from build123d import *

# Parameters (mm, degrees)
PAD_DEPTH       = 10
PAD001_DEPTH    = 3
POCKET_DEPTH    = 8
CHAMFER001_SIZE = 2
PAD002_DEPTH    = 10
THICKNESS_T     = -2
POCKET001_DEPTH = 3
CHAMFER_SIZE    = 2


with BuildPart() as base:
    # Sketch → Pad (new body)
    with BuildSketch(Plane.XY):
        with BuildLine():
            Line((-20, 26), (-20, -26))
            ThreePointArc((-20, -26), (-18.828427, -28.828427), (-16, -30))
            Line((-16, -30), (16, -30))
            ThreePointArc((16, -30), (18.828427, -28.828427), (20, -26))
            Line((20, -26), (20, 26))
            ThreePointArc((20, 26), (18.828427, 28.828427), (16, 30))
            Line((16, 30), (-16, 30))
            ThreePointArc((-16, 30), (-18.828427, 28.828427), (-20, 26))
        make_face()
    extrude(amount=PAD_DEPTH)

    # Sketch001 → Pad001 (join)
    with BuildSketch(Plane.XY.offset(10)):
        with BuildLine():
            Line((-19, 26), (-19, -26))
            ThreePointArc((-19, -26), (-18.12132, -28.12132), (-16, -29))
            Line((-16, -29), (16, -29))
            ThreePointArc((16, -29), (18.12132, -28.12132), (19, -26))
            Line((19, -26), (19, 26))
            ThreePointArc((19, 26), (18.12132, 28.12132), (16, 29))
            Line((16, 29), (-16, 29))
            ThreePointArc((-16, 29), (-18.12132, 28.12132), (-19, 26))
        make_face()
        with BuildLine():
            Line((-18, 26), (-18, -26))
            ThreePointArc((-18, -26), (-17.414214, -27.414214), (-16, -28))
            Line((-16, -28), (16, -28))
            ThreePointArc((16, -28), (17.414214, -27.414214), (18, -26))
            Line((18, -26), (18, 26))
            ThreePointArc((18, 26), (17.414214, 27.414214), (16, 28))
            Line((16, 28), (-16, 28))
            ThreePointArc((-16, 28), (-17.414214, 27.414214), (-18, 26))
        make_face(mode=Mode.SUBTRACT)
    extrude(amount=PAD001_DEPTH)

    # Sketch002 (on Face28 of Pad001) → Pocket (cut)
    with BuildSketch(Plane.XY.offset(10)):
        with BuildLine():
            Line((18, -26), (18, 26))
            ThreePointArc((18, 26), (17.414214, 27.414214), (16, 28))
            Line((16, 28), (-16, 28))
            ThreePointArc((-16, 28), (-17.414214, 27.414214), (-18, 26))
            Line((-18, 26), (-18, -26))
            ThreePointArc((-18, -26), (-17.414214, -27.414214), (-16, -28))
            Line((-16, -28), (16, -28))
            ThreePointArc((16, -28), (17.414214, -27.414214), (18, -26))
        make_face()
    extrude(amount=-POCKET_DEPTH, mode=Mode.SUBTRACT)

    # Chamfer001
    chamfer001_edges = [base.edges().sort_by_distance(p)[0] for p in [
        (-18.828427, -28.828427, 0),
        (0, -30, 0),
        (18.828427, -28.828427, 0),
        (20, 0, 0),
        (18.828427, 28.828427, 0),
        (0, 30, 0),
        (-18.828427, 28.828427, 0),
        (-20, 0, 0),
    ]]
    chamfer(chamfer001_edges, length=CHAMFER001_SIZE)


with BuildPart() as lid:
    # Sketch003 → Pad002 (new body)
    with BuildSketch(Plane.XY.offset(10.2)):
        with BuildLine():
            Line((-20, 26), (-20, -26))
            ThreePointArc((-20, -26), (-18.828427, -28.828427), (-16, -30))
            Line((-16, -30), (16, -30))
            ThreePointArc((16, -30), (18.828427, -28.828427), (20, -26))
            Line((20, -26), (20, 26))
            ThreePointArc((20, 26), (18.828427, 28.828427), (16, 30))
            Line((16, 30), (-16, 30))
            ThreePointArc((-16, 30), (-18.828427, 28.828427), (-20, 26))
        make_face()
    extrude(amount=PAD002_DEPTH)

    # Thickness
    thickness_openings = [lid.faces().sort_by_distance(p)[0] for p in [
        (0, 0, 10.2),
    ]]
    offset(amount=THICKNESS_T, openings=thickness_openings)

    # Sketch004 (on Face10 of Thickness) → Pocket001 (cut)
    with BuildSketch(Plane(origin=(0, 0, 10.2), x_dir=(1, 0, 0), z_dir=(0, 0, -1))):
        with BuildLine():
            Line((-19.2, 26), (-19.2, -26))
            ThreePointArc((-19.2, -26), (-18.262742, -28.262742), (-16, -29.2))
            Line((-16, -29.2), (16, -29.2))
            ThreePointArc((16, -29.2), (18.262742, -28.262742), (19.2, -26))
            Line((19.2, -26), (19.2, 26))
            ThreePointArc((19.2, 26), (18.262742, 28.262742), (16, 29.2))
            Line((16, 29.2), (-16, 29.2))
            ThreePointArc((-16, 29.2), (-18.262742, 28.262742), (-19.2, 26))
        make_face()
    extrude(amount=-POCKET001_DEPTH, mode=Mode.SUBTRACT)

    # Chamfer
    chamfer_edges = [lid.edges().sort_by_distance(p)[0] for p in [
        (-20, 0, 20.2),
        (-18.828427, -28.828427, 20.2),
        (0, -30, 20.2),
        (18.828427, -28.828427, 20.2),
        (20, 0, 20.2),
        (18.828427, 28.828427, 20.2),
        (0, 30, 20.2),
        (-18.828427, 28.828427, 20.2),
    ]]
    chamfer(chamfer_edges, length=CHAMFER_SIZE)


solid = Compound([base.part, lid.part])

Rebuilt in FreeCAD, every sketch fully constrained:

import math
import FreeCAD as App
import Part
import Sketcher
from FreeCAD import Vector
Q = App.Units.Quantity


def edges_at(feature, points):
    """Names of the edges that pass closest to the given points."""
    edges = feature.Shape.Edges
    near = lambda p: min(range(len(edges)), key=lambda i: edges[i].distToShape(Part.Vertex(*p))[0])
    return sorted({f"Edge{near(p) + 1}" for p in points})


def faces_at(feature, points):
    """Names of the faces that lie closest to the given points."""
    faces = feature.Shape.Faces
    near = lambda p: min(range(len(faces)), key=lambda i: faces[i].distToShape(Part.Vertex(*p))[0])
    return sorted({f"Face{near(p) + 1}" for p in points})

doc = App.newDocument("Part")
body = doc.addObject("PartDesign::Body", "Body")

# Sketch on XY plane
sketch1 = body.newObject("Sketcher::SketchObject", "Sketch")
sketch1.AttachmentSupport = (doc.getObject("XY_Plane"), [""])
sketch1.MapMode = "FlatFace"
sketch1.addGeometry([
    Part.LineSegment(Vector(-20, 26, 0), Vector(-20, -26, 0)),  # 0
    Part.ArcOfCircle(Part.Circle(Vector(-16, -26, 0), Vector(0, 0, 1), 4), math.radians(-180), math.radians(-90)),  # 1
    Part.LineSegment(Vector(-16, -30, 0), Vector(16, -30, 0)),  # 2
    Part.ArcOfCircle(Part.Circle(Vector(16, -26, 0), Vector(0, 0, 1), 4), math.radians(-90), math.radians(0)),  # 3
    Part.LineSegment(Vector(20, -26, 0), Vector(20, 26, 0)),  # 4
    Part.ArcOfCircle(Part.Circle(Vector(16, 26, 0), Vector(0, 0, 1), 4), math.radians(0), math.radians(90)),  # 5
    Part.LineSegment(Vector(16, 30, 0), Vector(-16, 30, 0)),  # 6
    Part.ArcOfCircle(Part.Circle(Vector(-16, 26, 0), Vector(0, 0, 1), 4), math.radians(90), math.radians(180)),  # 7
], False)
sketch1.addConstraint([
    Sketcher.Constraint("Tangent", 0, 2, 1, 1),
    Sketcher.Constraint("Tangent", 1, 2, 2, 1),
    Sketcher.Constraint("Tangent", 2, 2, 3, 1),
    Sketcher.Constraint("Tangent", 3, 2, 4, 1),
    Sketcher.Constraint("Tangent", 4, 2, 5, 1),
    Sketcher.Constraint("Tangent", 5, 2, 6, 1),
    Sketcher.Constraint("Tangent", 6, 2, 7, 1),
    Sketcher.Constraint("Tangent", 7, 2, 0, 1),
    Sketcher.Constraint("Vertical", 0),
    Sketcher.Constraint("Horizontal", 2),
    Sketcher.Constraint("Vertical", 4),
    Sketcher.Constraint("Horizontal", 6),
    Sketcher.Constraint("Equal", 1, 3),
    Sketcher.Constraint("Equal", 3, 5),
    Sketcher.Constraint("Equal", 5, 7),
    Sketcher.Constraint("Symmetric", 1, 3, 5, 3, -1, 1),
    Sketcher.Constraint("Radius", 1, Q("4 mm")),
    Sketcher.Constraint("DistanceX", 2, 1, 2, 2, Q("32 mm")),
    Sketcher.Constraint("DistanceY", 0, 2, 0, 1, Q("52 mm")),
])
pad1 = body.newObject("PartDesign::Pad", "Pad")
pad1.Profile = sketch1
pad1.Length = 10

# Sketch on XY plane
sketch2 = body.newObject("Sketcher::SketchObject", "Sketch001")
sketch2.AttachmentSupport = (doc.getObject("XY_Plane"), [""])
sketch2.MapMode = "FlatFace"
sketch2.AttachmentOffset = App.Placement(Vector(0, 0, 10), App.Rotation())
sketch2.addGeometry([
    Part.LineSegment(Vector(-19, 26, 0), Vector(-19, -26, 0)),  # 0
    Part.ArcOfCircle(Part.Circle(Vector(-16, -26, 0), Vector(0, 0, 1), 3), math.radians(-180), math.radians(-90)),  # 1
    Part.LineSegment(Vector(-16, -29, 0), Vector(16, -29, 0)),  # 2
    Part.ArcOfCircle(Part.Circle(Vector(16, -26, 0), Vector(0, 0, 1), 3), math.radians(-90), math.radians(0)),  # 3
    Part.LineSegment(Vector(19, -26, 0), Vector(19, 26, 0)),  # 4
    Part.ArcOfCircle(Part.Circle(Vector(16, 26, 0), Vector(0, 0, 1), 3), math.radians(0), math.radians(90)),  # 5
    Part.LineSegment(Vector(16, 29, 0), Vector(-16, 29, 0)),  # 6
    Part.ArcOfCircle(Part.Circle(Vector(-16, 26, 0), Vector(0, 0, 1), 3), math.radians(90), math.radians(180)),  # 7
    Part.LineSegment(Vector(-18, -26, 0), Vector(-18, 26, 0)),  # 8
    Part.ArcOfCircle(Part.Circle(Vector(-16, 26, 0), Vector(0, 0, 1), 2), math.radians(90), math.radians(180)),  # 9
    Part.LineSegment(Vector(-16, 28, 0), Vector(16, 28, 0)),  # 10
    Part.ArcOfCircle(Part.Circle(Vector(16, 26, 0), Vector(0, 0, 1), 2), math.radians(0), math.radians(90)),  # 11
    Part.LineSegment(Vector(18, 26, 0), Vector(18, -26, 0)),  # 12
    Part.ArcOfCircle(Part.Circle(Vector(16, -26, 0), Vector(0, 0, 1), 2), math.radians(-90), math.radians(0)),  # 13
    Part.LineSegment(Vector(16, -28, 0), Vector(-16, -28, 0)),  # 14
    Part.ArcOfCircle(Part.Circle(Vector(-16, -26, 0), Vector(0, 0, 1), 2), math.radians(180), math.radians(270)),  # 15
], False)
sketch2.addConstraint([
    Sketcher.Constraint("Tangent", 0, 2, 1, 1),
    Sketcher.Constraint("Tangent", 1, 2, 2, 1),
    Sketcher.Constraint("Tangent", 2, 2, 3, 1),
    Sketcher.Constraint("Tangent", 3, 2, 4, 1),
    Sketcher.Constraint("Tangent", 4, 2, 5, 1),
    Sketcher.Constraint("Tangent", 5, 2, 6, 1),
    Sketcher.Constraint("Tangent", 6, 2, 7, 1),
    Sketcher.Constraint("Tangent", 7, 2, 0, 1),
    Sketcher.Constraint("Tangent", 8, 2, 9, 2),
    Sketcher.Constraint("Tangent", 9, 1, 10, 1),
    Sketcher.Constraint("Tangent", 10, 2, 11, 2),
    Sketcher.Constraint("Tangent", 11, 1, 12, 1),
    Sketcher.Constraint("Tangent", 12, 2, 13, 2),
    Sketcher.Constraint("Tangent", 13, 1, 14, 1),
    Sketcher.Constraint("Tangent", 14, 2, 15, 2),
    Sketcher.Constraint("Tangent", 15, 1, 8, 1),
    Sketcher.Constraint("Vertical", 0),
    Sketcher.Constraint("Horizontal", 2),
    Sketcher.Constraint("Vertical", 4),
    Sketcher.Constraint("Horizontal", 6),
    Sketcher.Constraint("Vertical", 8),
    Sketcher.Constraint("Horizontal", 10),
    Sketcher.Constraint("Vertical", 12),
    Sketcher.Constraint("Horizontal", 14),
    Sketcher.Constraint("Coincident", 9, 3, 7, 3),
    Sketcher.Constraint("Coincident", 11, 3, 5, 3),
    Sketcher.Constraint("Coincident", 13, 3, 3, 3),
    Sketcher.Constraint("Equal", 1, 3),
    Sketcher.Constraint("Equal", 3, 5),
    Sketcher.Constraint("Equal", 5, 7),
    Sketcher.Constraint("Equal", 13, 15),
    Sketcher.Constraint("Symmetric", 1, 3, 5, 3, -1, 1),
    Sketcher.Constraint("Radius", 1, Q("3.000001 mm")),
    Sketcher.Constraint("Radius", 9, Q("1.999999 mm")),
    Sketcher.Constraint("DistanceX", 2, 1, 2, 2, Q("32 mm")),
    Sketcher.Constraint("DistanceY", 0, 2, 0, 1, Q("52 mm")),
])
pad2 = body.newObject("PartDesign::Pad", "Pad001")
pad2.Profile = sketch2
pad2.Length = 3

# Sketch on XY plane
sketch3 = body.newObject("Sketcher::SketchObject", "Sketch002")
sketch3.AttachmentSupport = (doc.getObject("XY_Plane"), [""])
sketch3.MapMode = "FlatFace"
sketch3.AttachmentOffset = App.Placement(Vector(0, 0, 10), App.Rotation())
sketch3.addGeometry([
    Part.LineSegment(Vector(18, -26, 0), Vector(18, 26, 0)),  # 0
    Part.ArcOfCircle(Part.Circle(Vector(16, 26, 0), Vector(0, 0, 1), 2), math.radians(0), math.radians(90)),  # 1
    Part.LineSegment(Vector(16, 28, 0), Vector(-16, 28, 0)),  # 2
    Part.ArcOfCircle(Part.Circle(Vector(-16, 26, 0), Vector(0, 0, 1), 2), math.radians(90), math.radians(180)),  # 3
    Part.LineSegment(Vector(-18, 26, 0), Vector(-18, -26, 0)),  # 4
    Part.ArcOfCircle(Part.Circle(Vector(-16, -26, 0), Vector(0, 0, 1), 2), math.radians(180), math.radians(270)),  # 5
    Part.LineSegment(Vector(-16, -28, 0), Vector(16, -28, 0)),  # 6
    Part.ArcOfCircle(Part.Circle(Vector(16, -26, 0), Vector(0, 0, 1), 2), math.radians(-90), math.radians(0)),  # 7
], False)
sketch3.addConstraint([
    Sketcher.Constraint("Tangent", 0, 2, 1, 1),
    Sketcher.Constraint("Tangent", 1, 2, 2, 1),
    Sketcher.Constraint("Tangent", 2, 2, 3, 1),
    Sketcher.Constraint("Tangent", 3, 2, 4, 1),
    Sketcher.Constraint("Tangent", 4, 2, 5, 1),
    Sketcher.Constraint("Tangent", 5, 2, 6, 1),
    Sketcher.Constraint("Tangent", 6, 2, 7, 1),
    Sketcher.Constraint("Tangent", 7, 2, 0, 1),
    Sketcher.Constraint("Vertical", 0),
    Sketcher.Constraint("Horizontal", 2),
    Sketcher.Constraint("Vertical", 4),
    Sketcher.Constraint("Horizontal", 6),
    Sketcher.Constraint("Equal", 1, 3),
    Sketcher.Constraint("Equal", 3, 5),
    Sketcher.Constraint("Equal", 5, 7),
    Sketcher.Constraint("Symmetric", 1, 3, 5, 3, -1, 1),
    Sketcher.Constraint("Radius", 1, Q("1.999999 mm")),
    Sketcher.Constraint("DistanceX", 2, 2, 2, 1, Q("32 mm")),
    Sketcher.Constraint("DistanceY", 0, 1, 0, 2, Q("52 mm")),
])
pocket1 = body.newObject("PartDesign::Pocket", "Pocket")
pocket1.Profile = sketch3
pocket1.Length = 8
doc.recompute()

chamfer = body.newObject("PartDesign::Chamfer", "Chamfer")
chamfer.Base = (pocket1, edges_at(pocket1, [
    (-18.828, -28.828, 0),
    (0, -30, 0),
    (18.828, -28.828, 0),
    (20, 0, 0),
    (18.828, 28.828, 0),
    (0, 30, 0),
    (-18.828, 28.828, 0),
    (-20, 0, 0),
]))
chamfer.Size = 2
body2 = doc.addObject("PartDesign::Body", "Body001")

# Sketch on XY plane
sketch4 = body2.newObject("Sketcher::SketchObject", "Sketch003")
sketch4.AttachmentSupport = (doc.getObject("XY_Plane001"), [""])
sketch4.MapMode = "FlatFace"
sketch4.AttachmentOffset = App.Placement(Vector(0, 0, 10.2), App.Rotation())
sketch4.addGeometry([
    Part.LineSegment(Vector(-20, 26, 0), Vector(-20, -26, 0)),  # 0
    Part.ArcOfCircle(Part.Circle(Vector(-16, -26, 0), Vector(0, 0, 1), 4), math.radians(-180), math.radians(-90)),  # 1
    Part.LineSegment(Vector(-16, -30, 0), Vector(16, -30, 0)),  # 2
    Part.ArcOfCircle(Part.Circle(Vector(16, -26, 0), Vector(0, 0, 1), 4), math.radians(-90), math.radians(0)),  # 3
    Part.LineSegment(Vector(20, -26, 0), Vector(20, 26, 0)),  # 4
    Part.ArcOfCircle(Part.Circle(Vector(16, 26, 0), Vector(0, 0, 1), 4), math.radians(0), math.radians(90)),  # 5
    Part.LineSegment(Vector(16, 30, 0), Vector(-16, 30, 0)),  # 6
    Part.ArcOfCircle(Part.Circle(Vector(-16, 26, 0), Vector(0, 0, 1), 4), math.radians(90), math.radians(180)),  # 7
], False)
sketch4.addConstraint([
    Sketcher.Constraint("Tangent", 0, 2, 1, 1),
    Sketcher.Constraint("Tangent", 1, 2, 2, 1),
    Sketcher.Constraint("Tangent", 2, 2, 3, 1),
    Sketcher.Constraint("Tangent", 3, 2, 4, 1),
    Sketcher.Constraint("Tangent", 4, 2, 5, 1),
    Sketcher.Constraint("Tangent", 5, 2, 6, 1),
    Sketcher.Constraint("Tangent", 6, 2, 7, 1),
    Sketcher.Constraint("Tangent", 7, 2, 0, 1),
    Sketcher.Constraint("Vertical", 0),
    Sketcher.Constraint("Horizontal", 2),
    Sketcher.Constraint("Vertical", 4),
    Sketcher.Constraint("Horizontal", 6),
    Sketcher.Constraint("Equal", 1, 3),
    Sketcher.Constraint("Equal", 3, 5),
    Sketcher.Constraint("Equal", 5, 7),
    Sketcher.Constraint("Symmetric", 1, 3, 5, 3, -1, 1),
    Sketcher.Constraint("Radius", 1, Q("4 mm")),
    Sketcher.Constraint("DistanceX", 2, 1, 2, 2, Q("32 mm")),
    Sketcher.Constraint("DistanceY", 0, 2, 0, 1, Q("52 mm")),
])
pad3 = body2.newObject("PartDesign::Pad", "Pad002")
pad3.Profile = sketch4
pad3.Length = 10
doc.recompute()

thickness = body2.newObject("PartDesign::Thickness", "Thickness")
thickness.Base = (pad3, faces_at(pad3, [(0, 0, 10.2)]))
thickness.Value = 2
thickness.Reversed = True
thickness.Join = "Arc"

# Sketch on XY plane
sketch5 = body2.newObject("Sketcher::SketchObject", "Sketch004")
sketch5.AttachmentSupport = (doc.getObject("XY_Plane001"), [""])
sketch5.MapMode = "FlatFace"
sketch5.AttachmentOffset = App.Placement(Vector(0, 0, 10.2), App.Rotation())
sketch5.addGeometry([
    Part.LineSegment(Vector(-19.2, -26, 0), Vector(-19.2, 26, 0)),  # 0
    Part.ArcOfCircle(Part.Circle(Vector(-16, 26, 0), Vector(0, 0, 1), 3.2), math.radians(90), math.radians(180)),  # 1
    Part.LineSegment(Vector(-16, 29.2, 0), Vector(16, 29.2, 0)),  # 2
    Part.ArcOfCircle(Part.Circle(Vector(16, 26, 0), Vector(0, 0, 1), 3.2), math.radians(0), math.radians(90)),  # 3
    Part.LineSegment(Vector(19.2, 26, 0), Vector(19.2, -26, 0)),  # 4
    Part.ArcOfCircle(Part.Circle(Vector(16, -26, 0), Vector(0, 0, 1), 3.2), math.radians(-90), math.radians(0)),  # 5
    Part.LineSegment(Vector(16, -29.2, 0), Vector(-16, -29.2, 0)),  # 6
    Part.ArcOfCircle(Part.Circle(Vector(-16, -26, 0), Vector(0, 0, 1), 3.2), math.radians(180), math.radians(270)),  # 7
], False)
sketch5.addConstraint([
    Sketcher.Constraint("Tangent", 0, 2, 1, 2),
    Sketcher.Constraint("Tangent", 1, 1, 2, 1),
    Sketcher.Constraint("Tangent", 2, 2, 3, 2),
    Sketcher.Constraint("Tangent", 3, 1, 4, 1),
    Sketcher.Constraint("Tangent", 4, 2, 5, 2),
    Sketcher.Constraint("Tangent", 5, 1, 6, 1),
    Sketcher.Constraint("Tangent", 6, 2, 7, 2),
    Sketcher.Constraint("Tangent", 7, 1, 0, 1),
    Sketcher.Constraint("Vertical", 0),
    Sketcher.Constraint("Horizontal", 2),
    Sketcher.Constraint("Vertical", 4),
    Sketcher.Constraint("Horizontal", 6),
    Sketcher.Constraint("Equal", 1, 3),
    Sketcher.Constraint("Equal", 3, 5),
    Sketcher.Constraint("Equal", 5, 7),
    Sketcher.Constraint("Symmetric", 1, 3, 5, 3, -1, 1),
    Sketcher.Constraint("Radius", 1, Q("3.199999 mm")),
    Sketcher.Constraint("DistanceX", 2, 1, 2, 2, Q("32 mm")),
    Sketcher.Constraint("DistanceY", 0, 1, 0, 2, Q("52 mm")),
])
pocket2 = body2.newObject("PartDesign::Pocket", "Pocket001")
pocket2.Profile = sketch5
pocket2.Length = 3
pocket2.Reversed = True
doc.recompute()

chamfer2 = body2.newObject("PartDesign::Chamfer", "Chamfer001")
chamfer2.Base = (pocket2, edges_at(pocket2, [
    (-20, 0, 20.2),
    (-18.828, -28.828, 20.2),
    (0, -30, 20.2),
    (18.828, -28.828, 20.2),
    (20, 0, 20.2),
    (18.828, 28.828, 20.2),
    (0, 30, 20.2),
    (-18.828, 28.828, 20.2),
]))
chamfer2.Size = 2

doc.recompute()
